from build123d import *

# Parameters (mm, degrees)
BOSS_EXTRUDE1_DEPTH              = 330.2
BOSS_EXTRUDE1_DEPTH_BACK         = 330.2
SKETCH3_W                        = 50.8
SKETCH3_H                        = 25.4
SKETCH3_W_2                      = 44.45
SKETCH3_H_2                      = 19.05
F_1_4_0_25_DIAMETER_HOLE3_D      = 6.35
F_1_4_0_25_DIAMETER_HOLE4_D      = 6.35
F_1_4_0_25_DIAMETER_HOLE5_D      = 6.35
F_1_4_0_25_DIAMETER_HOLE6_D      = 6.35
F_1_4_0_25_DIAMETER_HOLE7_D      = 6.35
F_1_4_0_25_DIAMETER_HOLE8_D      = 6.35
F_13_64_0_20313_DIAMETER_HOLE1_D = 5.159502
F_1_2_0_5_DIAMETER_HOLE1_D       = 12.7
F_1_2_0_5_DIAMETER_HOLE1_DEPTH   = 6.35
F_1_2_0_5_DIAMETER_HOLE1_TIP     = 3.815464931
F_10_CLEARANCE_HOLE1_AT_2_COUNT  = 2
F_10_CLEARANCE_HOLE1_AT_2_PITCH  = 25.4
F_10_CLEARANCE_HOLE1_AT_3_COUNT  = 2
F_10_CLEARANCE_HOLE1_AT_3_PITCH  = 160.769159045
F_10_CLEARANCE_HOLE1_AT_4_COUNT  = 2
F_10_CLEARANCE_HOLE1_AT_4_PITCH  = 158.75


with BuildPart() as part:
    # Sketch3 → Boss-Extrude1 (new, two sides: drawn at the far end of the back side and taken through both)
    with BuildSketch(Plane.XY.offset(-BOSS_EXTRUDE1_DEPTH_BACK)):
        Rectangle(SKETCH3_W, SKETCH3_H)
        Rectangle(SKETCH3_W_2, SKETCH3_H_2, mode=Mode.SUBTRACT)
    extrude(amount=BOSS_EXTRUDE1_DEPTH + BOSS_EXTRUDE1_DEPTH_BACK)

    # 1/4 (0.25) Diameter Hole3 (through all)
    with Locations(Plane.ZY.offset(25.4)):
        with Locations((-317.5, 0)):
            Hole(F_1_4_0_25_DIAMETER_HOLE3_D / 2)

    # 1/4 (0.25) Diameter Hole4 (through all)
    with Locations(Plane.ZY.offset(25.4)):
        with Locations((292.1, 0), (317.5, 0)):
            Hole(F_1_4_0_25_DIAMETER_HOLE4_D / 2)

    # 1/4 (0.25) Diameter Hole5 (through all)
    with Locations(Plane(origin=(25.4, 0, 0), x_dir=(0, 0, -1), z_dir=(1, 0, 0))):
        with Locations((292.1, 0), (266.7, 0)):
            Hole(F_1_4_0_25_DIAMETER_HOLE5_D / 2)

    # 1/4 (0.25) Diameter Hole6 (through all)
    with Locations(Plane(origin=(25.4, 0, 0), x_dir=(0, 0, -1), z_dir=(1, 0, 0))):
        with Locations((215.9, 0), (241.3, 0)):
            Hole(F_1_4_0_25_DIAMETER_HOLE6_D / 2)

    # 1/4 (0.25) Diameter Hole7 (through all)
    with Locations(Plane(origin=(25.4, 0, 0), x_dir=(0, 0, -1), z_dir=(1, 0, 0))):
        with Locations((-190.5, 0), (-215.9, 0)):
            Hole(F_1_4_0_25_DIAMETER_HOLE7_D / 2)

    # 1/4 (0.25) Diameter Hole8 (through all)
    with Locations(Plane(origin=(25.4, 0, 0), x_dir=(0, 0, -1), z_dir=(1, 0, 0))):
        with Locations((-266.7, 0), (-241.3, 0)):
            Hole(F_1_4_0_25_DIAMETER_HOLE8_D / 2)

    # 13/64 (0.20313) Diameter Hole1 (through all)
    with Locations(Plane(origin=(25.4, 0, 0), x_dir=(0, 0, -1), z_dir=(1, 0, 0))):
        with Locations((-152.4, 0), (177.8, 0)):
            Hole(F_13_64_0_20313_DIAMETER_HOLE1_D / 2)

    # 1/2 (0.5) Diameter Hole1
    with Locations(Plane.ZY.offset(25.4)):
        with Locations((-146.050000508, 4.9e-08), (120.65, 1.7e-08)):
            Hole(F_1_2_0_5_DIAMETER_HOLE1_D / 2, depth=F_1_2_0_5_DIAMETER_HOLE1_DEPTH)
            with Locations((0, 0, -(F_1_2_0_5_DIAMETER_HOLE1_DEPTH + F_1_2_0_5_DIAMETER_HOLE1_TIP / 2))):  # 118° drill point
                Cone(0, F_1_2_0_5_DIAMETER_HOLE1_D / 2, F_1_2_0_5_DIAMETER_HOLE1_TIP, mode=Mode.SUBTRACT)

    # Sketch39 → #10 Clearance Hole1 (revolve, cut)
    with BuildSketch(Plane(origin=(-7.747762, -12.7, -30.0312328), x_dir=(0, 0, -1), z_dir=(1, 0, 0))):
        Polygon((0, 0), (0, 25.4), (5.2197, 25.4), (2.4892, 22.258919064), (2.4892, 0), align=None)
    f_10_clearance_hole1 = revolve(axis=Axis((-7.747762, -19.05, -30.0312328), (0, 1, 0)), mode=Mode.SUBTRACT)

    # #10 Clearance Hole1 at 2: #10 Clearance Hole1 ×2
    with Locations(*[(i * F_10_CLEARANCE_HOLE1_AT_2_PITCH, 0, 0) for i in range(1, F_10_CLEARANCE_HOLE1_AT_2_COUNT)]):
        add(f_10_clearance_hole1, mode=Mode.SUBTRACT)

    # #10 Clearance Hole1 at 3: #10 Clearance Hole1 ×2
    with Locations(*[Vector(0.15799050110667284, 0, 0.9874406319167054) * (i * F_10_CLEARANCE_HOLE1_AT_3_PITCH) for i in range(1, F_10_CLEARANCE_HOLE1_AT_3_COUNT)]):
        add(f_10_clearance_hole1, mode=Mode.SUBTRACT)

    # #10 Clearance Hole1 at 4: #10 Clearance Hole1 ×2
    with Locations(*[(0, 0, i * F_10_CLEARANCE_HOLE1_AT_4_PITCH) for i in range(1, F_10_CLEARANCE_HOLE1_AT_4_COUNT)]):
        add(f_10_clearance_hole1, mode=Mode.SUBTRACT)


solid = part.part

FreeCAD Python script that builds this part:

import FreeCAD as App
import Part
import Sketcher

V = App.Vector
Q = App.Units.Quantity

doc = App.newDocument("Part")
body = doc.addObject("PartDesign::Body", "Body")

# Sketch on XY plane
sketch1 = doc.addObject("Sketcher::SketchObject", "Sketch")
body.addObject(sketch1)
sketch1.AttachmentSupport = (doc.XY_Plane, [""])
sketch1.MapMode = "FlatFace"
sketch1.addGeometry([
    Part.LineSegment(V(-25, 13, 0), V(-25, -13, 0)),  # 0
    Part.LineSegment(V(-25, -13, 0), V(25, -13, 0)),  # 1
    Part.LineSegment(V(25, -13, 0), V(25, 13, 0)),  # 2
    Part.LineSegment(V(25, 13, 0), V(-25, 13, 0)),  # 3
    Part.LineSegment(V(22, -10, 0), V(-22, -10, 0)),  # 4
    Part.LineSegment(V(-22, -10, 0), V(-22, 10, 0)),  # 5
    Part.LineSegment(V(-22, 10, 0), V(22, 10, 0)),  # 6
    Part.LineSegment(V(22, 10, 0), V(22, -10, 0)),  # 7
], False)
sketch1.addConstraint([
    Sketcher.Constraint("Coincident", 0, 2, 1, 1),
    Sketcher.Constraint("Coincident", 1, 2, 2, 1),
    Sketcher.Constraint("Coincident", 2, 2, 3, 1),
    Sketcher.Constraint("Coincident", 3, 2, 0, 1),
    Sketcher.Constraint("Coincident", 4, 2, 5, 1),
    Sketcher.Constraint("Coincident", 5, 2, 6, 1),
    Sketcher.Constraint("Coincident", 6, 2, 7, 1),
    Sketcher.Constraint("Coincident", 7, 2, 4, 1),
    Sketcher.Constraint("Vertical", 0),
    Sketcher.Constraint("Horizontal", 1),
    Sketcher.Constraint("Vertical", 2),
    Sketcher.Constraint("Horizontal", 3),
    Sketcher.Constraint("Horizontal", 4),
    Sketcher.Constraint("Vertical", 5),
    Sketcher.Constraint("Horizontal", 6),
    Sketcher.Constraint("Vertical", 7),
    Sketcher.Constraint("Symmetric", 0, 2, 2, 2, -1, 1),
    Sketcher.Constraint("Symmetric", 4, 2, 6, 2, -1, 1),
    Sketcher.Constraint("DistanceX", 1, 1, 1, 2, Q("2 in")),
    Sketcher.Constraint("DistanceY", 0, 2, 0, 1, Q("1 in")),
    Sketcher.Constraint("DistanceX", 4, 2, 4, 1, Q("1.75 in")),
    Sketcher.Constraint("DistanceY", 5, 1, 5, 2, Q("0.75 in")),
])
pad1 = doc.addObject("PartDesign::Pad", "Pad")
body.addObject(pad1)
pad1.Profile = sketch1
pad1.Type = "TwoLengths"
pad1.Length = Q("13 in")
pad1.Length2 = Q("13 in")

# Sketch on YZ plane
sketch2 = doc.addObject("Sketcher::SketchObject", "Sketch001")
body.addObject(sketch2)
sketch2.AttachmentSupport = (doc.YZ_Plane, [""])
sketch2.MapMode = "FlatFace"
sketch2.AttachmentOffset = App.Placement(V(0, 0, -1 * 25.4), App.Rotation())
sketch2.addGeometry(Part.Circle(V(0, -317.5, 0), V(0, 0, 1), 3.2), False)
sketch2.addConstraint([
    Sketcher.Constraint("PointOnObject", 0, 3, -2),
    Sketcher.Constraint("Diameter", 0, Q("0.25 in")),
    Sketcher.Constraint("DistanceY", 0, 3, -1, 1, Q("12.5 in")),
])
doc.recompute()
hole = doc.addObject("PartDesign::Hole", "Hole")
body.addObject(hole)
hole.Profile = sketch2
hole.ThreadType = "None"
hole.Diameter = Q("0.25 in")
hole.DepthType = "ThroughAll"
hole.Reversed = True

# Sketch on YZ plane
sketch3 = doc.addObject("Sketcher::SketchObject", "Sketch002")
body.addObject(sketch3)
sketch3.AttachmentSupport = (doc.YZ_Plane, [""])
sketch3.MapMode = "FlatFace"
sketch3.AttachmentOffset = App.Placement(V(0, 0, -1 * 25.4), App.Rotation())
sketch3.addGeometry([
    Part.Circle(V(0, 292.1, 0), V(0, 0, 1), 3.2),
    Part.Circle(V(0, 317.5, 0), V(0, 0, 1), 3.2),
], False)
sketch3.addConstraint([
    Sketcher.Constraint("Equal", 0, 1),
    Sketcher.Constraint("PointOnObject", 0, 3, -2),
    Sketcher.Constraint("PointOnObject", 1, 3, -2),
    Sketcher.Constraint("Diameter", 0, Q("0.25 in")),
    Sketcher.Constraint("DistanceY", 0, 3, 1, 3, Q("1 in")),
    Sketcher.Constraint("DistanceY", -1, 1, 0, 3, Q("11.5 in")),
])
doc.recompute()
hole2 = doc.addObject("PartDesign::Hole", "Hole001")
body.addObject(hole2)
hole2.Profile = sketch3
hole2.ThreadType = "None"
hole2.Diameter = Q("0.25 in")
hole2.DepthType = "ThroughAll"
hole2.Reversed = True

# Sketch on YZ plane
sketch4 = doc.addObject("Sketcher::SketchObject", "Sketch003")
body.addObject(sketch4)
sketch4.AttachmentSupport = (doc.YZ_Plane, [""])
sketch4.MapMode = "FlatFace"
sketch4.AttachmentOffset = App.Placement(V(0, 0, 1 * 25.4), App.Rotation())
sketch4.addGeometry([
    Part.Circle(V(0, -292.1, 0), V(0, 0, 1), 3.2),
    Part.Circle(V(0, -266.7, 0), V(0, 0, 1), 3.2),
], False)
sketch4.addConstraint([
    Sketcher.Constraint("Equal", 0, 1),
    Sketcher.Constraint("PointOnObject", 0, 3, -2),
    Sketcher.Constraint("PointOnObject", 1, 3, -2),
    Sketcher.Constraint("Diameter", 0, Q("0.25 in")),
    Sketcher.Constraint("DistanceY", 0, 3, 1, 3, Q("1 in")),
    Sketcher.Constraint("DistanceY", 0, 3, -1, 1, Q("11.5 in")),
])
doc.recompute()
hole3 = doc.addObject("PartDesign::Hole", "Hole002")
body.addObject(hole3)
hole3.Profile = sketch4
hole3.ThreadType = "None"
hole3.Diameter = Q("0.25 in")
hole3.DepthType = "ThroughAll"

# Sketch on YZ plane
sketch5 = doc.addObject("Sketcher::SketchObject", "Sketch004")
body.addObject(sketch5)
sketch5.AttachmentSupport = (doc.YZ_Plane, [""])
sketch5.MapMode = "FlatFace"
sketch5.AttachmentOffset = App.Placement(V(0, 0, 1 * 25.4), App.Rotation())
sketch5.addGeometry([
    Part.Circle(V(0, -215.9, 0), V(0, 0, 1), 3.2),
    Part.Circle(V(0, -241.3, 0), V(0, 0, 1), 3.2),
], False)
sketch5.addConstraint([
    Sketcher.Constraint("Equal", 0, 1),
    Sketcher.Constraint("PointOnObject", 0, 3, -2),
    Sketcher.Constraint("PointOnObject", 1, 3, -2),
    Sketcher.Constraint("Diameter", 0, Q("0.25 in")),
    Sketcher.Constraint("DistanceY", 1, 3, 0, 3, Q("1 in")),
    Sketcher.Constraint("DistanceY", 0, 3, -1, 1, Q("8.5 in")),
])
doc.recompute()
hole4 = doc.addObject("PartDesign::Hole", "Hole003")
body.addObject(hole4)
hole4.Profile = sketch5
hole4.ThreadType = "None"
hole4.Diameter = Q("0.25 in")
hole4.DepthType = "ThroughAll"

# Sketch on YZ plane
sketch6 = doc.addObject("Sketcher::SketchObject", "Sketch005")
body.addObject(sketch6)
sketch6.AttachmentSupport = (doc.YZ_Plane, [""])
sketch6.MapMode = "FlatFace"
sketch6.AttachmentOffset = App.Placement(V(0, 0, 1 * 25.4), App.Rotation())
sketch6.addGeometry([
    Part.Circle(V(0, 190.5, 0), V(0, 0, 1), 3.2),
    Part.Circle(V(0, 215.9, 0), V(0, 0, 1), 3.2),
], False)
sketch6.addConstraint([
    Sketcher.Constraint("Equal", 0, 1),
    Sketcher.Constraint("PointOnObject", 0, 3, -2),
    Sketcher.Constraint("PointOnObject", 1, 3, -2),
    Sketcher.Constraint("Diameter", 0, Q("0.25 in")),
    Sketcher.Constraint("DistanceY", 0, 3, 1, 3, Q("1 in")),
    Sketcher.Constraint("DistanceY", -1, 1, 0, 3, Q("7.5 in")),
])
doc.recompute()
hole5 = doc.addObject("PartDesign::Hole", "Hole004")
body.addObject(hole5)
hole5.Profile = sketch6
hole5.ThreadType = "None"
hole5.Diameter = Q("0.25 in")
hole5.DepthType = "ThroughAll"

# Sketch on YZ plane
sketch7 = doc.addObject("Sketcher::SketchObject", "Sketch006")
body.addObject(sketch7)
sketch7.AttachmentSupport = (doc.YZ_Plane, [""])
sketch7.MapMode = "FlatFace"
sketch7.AttachmentOffset = App.Placement(V(0, 0, 1 * 25.4), App.Rotation())
sketch7.addGeometry([
    Part.Circle(V(0, 266.7, 0), V(0, 0, 1), 3.2),
    Part.Circle(V(0, 241.3, 0), V(0, 0, 1), 3.2),
], False)
sketch7.addConstraint([
    Sketcher.Constraint("Equal", 0, 1),
    Sketcher.Constraint("PointOnObject", 0, 3, -2),
    Sketcher.Constraint("PointOnObject", 1, 3, -2),
    Sketcher.Constraint("Diameter", 0, Q("0.25 in")),
    Sketcher.Constraint("DistanceY", 1, 3, 0, 3, Q("1 in")),
    Sketcher.Constraint("DistanceY", -1, 1, 0, 3, Q("10.5 in")),
])
doc.recompute()
hole6 = doc.addObject("PartDesign::Hole", "Hole005")
body.addObject(hole6)
hole6.Profile = sketch7
hole6.ThreadType = "None"
hole6.Diameter = Q("0.25 in")
hole6.DepthType = "ThroughAll"

# Sketch on YZ plane
sketch8 = doc.addObject("Sketcher::SketchObject", "Sketch007")
body.addObject(sketch8)
sketch8.AttachmentSupport = (doc.YZ_Plane, [""])
sketch8.MapMode = "FlatFace"
sketch8.AttachmentOffset = App.Placement(V(0, 0, 1 * 25.4), App.Rotation())
sketch8.addGeometry([
    Part.Circle(V(0, 152.4, 0), V(0, 0, 1), 2.6),
    Part.Circle(V(0, -177.8, 0), V(0, 0, 1), 2.6),
], False)
sketch8.addConstraint([
    Sketcher.Constraint("Equal", 0, 1),
    Sketcher.Constraint("PointOnObject", 0, 3, -2),
    Sketcher.Constraint("PointOnObject", 1, 3, -2),
    Sketcher.Constraint("DistanceY", -1, 1, 0, 3, Q("6 in")),
    Sketcher.Constraint("DistanceY", 1, 3, -1, 1, Q("7 in")),
    Sketcher.Constraint("Diameter", 0, 5.159502),
])
doc.recompute()
hole7 = doc.addObject("PartDesign::Hole", "Hole006")
body.addObject(hole7)
hole7.Profile = sketch8
hole7.ThreadType = "None"
hole7.Diameter = 5.159502
hole7.DepthType = "ThroughAll"

# Sketch on YZ plane
sketch9 = doc.addObject("Sketcher::SketchObject", "Sketch008")
body.addObject(sketch9)
sketch9.AttachmentSupport = (doc.YZ_Plane, [""])
sketch9.MapMode = "FlatFace"
sketch9.AttachmentOffset = App.Placement(V(0, 0, -1 * 25.4), App.Rotation())
sketch9.addGeometry([
    Part.Circle(V(0, -146, 0), V(0, 0, 1), 6),
    Part.Circle(V(0, 121, 0), V(0, 0, 1), 6),
], False)
sketch9.addConstraint([
    Sketcher.Constraint("Equal", 0, 1),
    Sketcher.Constraint("PointOnObject", 0, 3, -2),
    Sketcher.Constraint("PointOnObject", 1, 3, -2),
    Sketcher.Constraint("Diameter", 0, Q("0.5 in")),
    Sketcher.Constraint("DistanceY", 0, 3, 1, 3, Q("10.5 in")),
    Sketcher.Constraint("DistanceY", 0, 3, -1, 1, Q("5.75 in")),
])
doc.recompute()
hole8 = doc.addObject("PartDesign::Hole", "Hole007")
body.addObject(hole8)
hole8.Profile = sketch9
hole8.ThreadType = "None"
hole8.Diameter = Q("0.5 in")
hole8.DepthType = "Dimension"
hole8.Depth = Q("0.25 in")
hole8.DrillPoint = "Angled"
hole8.DrillPointAngle = 118
hole8.Reversed = True

# Sketch on YZ plane
sketch10 = doc.addObject("Sketcher::SketchObject", "Sketch009")
body.addObject(sketch10)
sketch10.AttachmentSupport = (doc.YZ_Plane, [""])
sketch10.MapMode = "FlatFace"
sketch10.AttachmentOffset = App.Placement(V(0, 0, -7.747762), App.Rotation())
sketch10.addGeometry([
    Part.LineSegment(V(12.7, -30, 0), V(-12.7, -30, 0)),  # 0
    Part.LineSegment(V(-12.7, -30, 0), V(-12.7, -32.5, 0)),  # 1
    Part.LineSegment(V(-12.7, -32.5, 0), V(9.6, -32.5, 0)),  # 2
    Part.LineSegment(V(9.6, -32.5, 0), V(12.7, -35.3, 0)),  # 3
    Part.LineSegment(V(12.7, -35.3, 0), V(12.7, -30, 0)),  # 4
], False)
sketch10.addGeometry(Part.LineSegment(V(-12.7, -30, 0), V(12.7, -30, 0)), True)  # axis
sketch10.addConstraint([
    Sketcher.Constraint("Coincident", 0, 2, 1, 1),
    Sketcher.Constraint("Coincident", 1, 2, 2, 1),
    Sketcher.Constraint("Coincident", 2, 2, 3, 1),
    Sketcher.Constraint("Coincident", 3, 2, 4, 1),
    Sketcher.Constraint("Coincident", 4, 2, 0, 1),
    Sketcher.Constraint("Horizontal", 0),
    Sketcher.Constraint("Vertical", 1),
    Sketcher.Constraint("Horizontal", 2),
    Sketcher.Constraint("Vertical", 4),
    Sketcher.Constraint("Horizontal", 5),
    Sketcher.Constraint("Coincident", 5, 1, 0, 2),
    Sketcher.Constraint("Vertical", 3, 2, 5, 2),
    Sketcher.Constraint("DistanceX", 0, 2, 0, 1, Q("1 in")),
    Sketcher.Constraint("Angle", 3, Q("-41 deg")),
    Sketcher.Constraint("DistanceX", 0, 2, -1, 1, Q("0.5 in")),
    Sketcher.Constraint("DistanceY", 1, 2, 1, 1, Q("0.098 in")),
    Sketcher.Constraint("DistanceY", 4, 1, 4, 2, Q("0.2055 in")),
    Sketcher.Constraint("DistanceY", 0, 2, -1, 1, 30.031233),
])
groove = doc.addObject("PartDesign::Groove", "Groove")
body.addObject(groove)
groove.Profile = sketch10
groove.ReferenceAxis = (sketch10, ["Axis0"])
groove.Angle = 360
doc.recompute()

linearpattern = doc.addObject("PartDesign::LinearPattern", "LinearPattern")
body.addObject(linearpattern)
linearpattern.Originals = [groove]
linearpattern.Direction = (doc.X_Axis, [""])
linearpattern.Mode = "offset"
linearpattern.Offset = Q("1 in")
linearpattern.Occurrences = 2
body.Tip = linearpattern
doc.recompute()

datumline = doc.addObject("PartDesign::Line", "DatumLine")
body.addObject(datumline)
datumline.Placement = App.Placement(V(0, 0, 0), App.Rotation(V(0, 0, 1), V(0.157990501, 0, 0.987440632)))
linearpattern2 = doc.addObject("PartDesign::LinearPattern", "LinearPattern001")
body.addObject(linearpattern2)
linearpattern2.Originals = [groove]
linearpattern2.Direction = (datumline, [""])
linearpattern2.Mode = "offset"
linearpattern2.Offset = 160.769159
linearpattern2.Occurrences = 2
body.Tip = linearpattern2
doc.recompute()

linearpattern3 = doc.addObject("PartDesign::LinearPattern", "LinearPattern002")
body.addObject(linearpattern3)
linearpattern3.Originals = [groove]
linearpattern3.Direction = (doc.Z_Axis, [""])
linearpattern3.Mode = "offset"
linearpattern3.Offset = Q("6.25 in")
linearpattern3.Occurrences = 2
body.Tip = linearpattern3

doc.recompute()
